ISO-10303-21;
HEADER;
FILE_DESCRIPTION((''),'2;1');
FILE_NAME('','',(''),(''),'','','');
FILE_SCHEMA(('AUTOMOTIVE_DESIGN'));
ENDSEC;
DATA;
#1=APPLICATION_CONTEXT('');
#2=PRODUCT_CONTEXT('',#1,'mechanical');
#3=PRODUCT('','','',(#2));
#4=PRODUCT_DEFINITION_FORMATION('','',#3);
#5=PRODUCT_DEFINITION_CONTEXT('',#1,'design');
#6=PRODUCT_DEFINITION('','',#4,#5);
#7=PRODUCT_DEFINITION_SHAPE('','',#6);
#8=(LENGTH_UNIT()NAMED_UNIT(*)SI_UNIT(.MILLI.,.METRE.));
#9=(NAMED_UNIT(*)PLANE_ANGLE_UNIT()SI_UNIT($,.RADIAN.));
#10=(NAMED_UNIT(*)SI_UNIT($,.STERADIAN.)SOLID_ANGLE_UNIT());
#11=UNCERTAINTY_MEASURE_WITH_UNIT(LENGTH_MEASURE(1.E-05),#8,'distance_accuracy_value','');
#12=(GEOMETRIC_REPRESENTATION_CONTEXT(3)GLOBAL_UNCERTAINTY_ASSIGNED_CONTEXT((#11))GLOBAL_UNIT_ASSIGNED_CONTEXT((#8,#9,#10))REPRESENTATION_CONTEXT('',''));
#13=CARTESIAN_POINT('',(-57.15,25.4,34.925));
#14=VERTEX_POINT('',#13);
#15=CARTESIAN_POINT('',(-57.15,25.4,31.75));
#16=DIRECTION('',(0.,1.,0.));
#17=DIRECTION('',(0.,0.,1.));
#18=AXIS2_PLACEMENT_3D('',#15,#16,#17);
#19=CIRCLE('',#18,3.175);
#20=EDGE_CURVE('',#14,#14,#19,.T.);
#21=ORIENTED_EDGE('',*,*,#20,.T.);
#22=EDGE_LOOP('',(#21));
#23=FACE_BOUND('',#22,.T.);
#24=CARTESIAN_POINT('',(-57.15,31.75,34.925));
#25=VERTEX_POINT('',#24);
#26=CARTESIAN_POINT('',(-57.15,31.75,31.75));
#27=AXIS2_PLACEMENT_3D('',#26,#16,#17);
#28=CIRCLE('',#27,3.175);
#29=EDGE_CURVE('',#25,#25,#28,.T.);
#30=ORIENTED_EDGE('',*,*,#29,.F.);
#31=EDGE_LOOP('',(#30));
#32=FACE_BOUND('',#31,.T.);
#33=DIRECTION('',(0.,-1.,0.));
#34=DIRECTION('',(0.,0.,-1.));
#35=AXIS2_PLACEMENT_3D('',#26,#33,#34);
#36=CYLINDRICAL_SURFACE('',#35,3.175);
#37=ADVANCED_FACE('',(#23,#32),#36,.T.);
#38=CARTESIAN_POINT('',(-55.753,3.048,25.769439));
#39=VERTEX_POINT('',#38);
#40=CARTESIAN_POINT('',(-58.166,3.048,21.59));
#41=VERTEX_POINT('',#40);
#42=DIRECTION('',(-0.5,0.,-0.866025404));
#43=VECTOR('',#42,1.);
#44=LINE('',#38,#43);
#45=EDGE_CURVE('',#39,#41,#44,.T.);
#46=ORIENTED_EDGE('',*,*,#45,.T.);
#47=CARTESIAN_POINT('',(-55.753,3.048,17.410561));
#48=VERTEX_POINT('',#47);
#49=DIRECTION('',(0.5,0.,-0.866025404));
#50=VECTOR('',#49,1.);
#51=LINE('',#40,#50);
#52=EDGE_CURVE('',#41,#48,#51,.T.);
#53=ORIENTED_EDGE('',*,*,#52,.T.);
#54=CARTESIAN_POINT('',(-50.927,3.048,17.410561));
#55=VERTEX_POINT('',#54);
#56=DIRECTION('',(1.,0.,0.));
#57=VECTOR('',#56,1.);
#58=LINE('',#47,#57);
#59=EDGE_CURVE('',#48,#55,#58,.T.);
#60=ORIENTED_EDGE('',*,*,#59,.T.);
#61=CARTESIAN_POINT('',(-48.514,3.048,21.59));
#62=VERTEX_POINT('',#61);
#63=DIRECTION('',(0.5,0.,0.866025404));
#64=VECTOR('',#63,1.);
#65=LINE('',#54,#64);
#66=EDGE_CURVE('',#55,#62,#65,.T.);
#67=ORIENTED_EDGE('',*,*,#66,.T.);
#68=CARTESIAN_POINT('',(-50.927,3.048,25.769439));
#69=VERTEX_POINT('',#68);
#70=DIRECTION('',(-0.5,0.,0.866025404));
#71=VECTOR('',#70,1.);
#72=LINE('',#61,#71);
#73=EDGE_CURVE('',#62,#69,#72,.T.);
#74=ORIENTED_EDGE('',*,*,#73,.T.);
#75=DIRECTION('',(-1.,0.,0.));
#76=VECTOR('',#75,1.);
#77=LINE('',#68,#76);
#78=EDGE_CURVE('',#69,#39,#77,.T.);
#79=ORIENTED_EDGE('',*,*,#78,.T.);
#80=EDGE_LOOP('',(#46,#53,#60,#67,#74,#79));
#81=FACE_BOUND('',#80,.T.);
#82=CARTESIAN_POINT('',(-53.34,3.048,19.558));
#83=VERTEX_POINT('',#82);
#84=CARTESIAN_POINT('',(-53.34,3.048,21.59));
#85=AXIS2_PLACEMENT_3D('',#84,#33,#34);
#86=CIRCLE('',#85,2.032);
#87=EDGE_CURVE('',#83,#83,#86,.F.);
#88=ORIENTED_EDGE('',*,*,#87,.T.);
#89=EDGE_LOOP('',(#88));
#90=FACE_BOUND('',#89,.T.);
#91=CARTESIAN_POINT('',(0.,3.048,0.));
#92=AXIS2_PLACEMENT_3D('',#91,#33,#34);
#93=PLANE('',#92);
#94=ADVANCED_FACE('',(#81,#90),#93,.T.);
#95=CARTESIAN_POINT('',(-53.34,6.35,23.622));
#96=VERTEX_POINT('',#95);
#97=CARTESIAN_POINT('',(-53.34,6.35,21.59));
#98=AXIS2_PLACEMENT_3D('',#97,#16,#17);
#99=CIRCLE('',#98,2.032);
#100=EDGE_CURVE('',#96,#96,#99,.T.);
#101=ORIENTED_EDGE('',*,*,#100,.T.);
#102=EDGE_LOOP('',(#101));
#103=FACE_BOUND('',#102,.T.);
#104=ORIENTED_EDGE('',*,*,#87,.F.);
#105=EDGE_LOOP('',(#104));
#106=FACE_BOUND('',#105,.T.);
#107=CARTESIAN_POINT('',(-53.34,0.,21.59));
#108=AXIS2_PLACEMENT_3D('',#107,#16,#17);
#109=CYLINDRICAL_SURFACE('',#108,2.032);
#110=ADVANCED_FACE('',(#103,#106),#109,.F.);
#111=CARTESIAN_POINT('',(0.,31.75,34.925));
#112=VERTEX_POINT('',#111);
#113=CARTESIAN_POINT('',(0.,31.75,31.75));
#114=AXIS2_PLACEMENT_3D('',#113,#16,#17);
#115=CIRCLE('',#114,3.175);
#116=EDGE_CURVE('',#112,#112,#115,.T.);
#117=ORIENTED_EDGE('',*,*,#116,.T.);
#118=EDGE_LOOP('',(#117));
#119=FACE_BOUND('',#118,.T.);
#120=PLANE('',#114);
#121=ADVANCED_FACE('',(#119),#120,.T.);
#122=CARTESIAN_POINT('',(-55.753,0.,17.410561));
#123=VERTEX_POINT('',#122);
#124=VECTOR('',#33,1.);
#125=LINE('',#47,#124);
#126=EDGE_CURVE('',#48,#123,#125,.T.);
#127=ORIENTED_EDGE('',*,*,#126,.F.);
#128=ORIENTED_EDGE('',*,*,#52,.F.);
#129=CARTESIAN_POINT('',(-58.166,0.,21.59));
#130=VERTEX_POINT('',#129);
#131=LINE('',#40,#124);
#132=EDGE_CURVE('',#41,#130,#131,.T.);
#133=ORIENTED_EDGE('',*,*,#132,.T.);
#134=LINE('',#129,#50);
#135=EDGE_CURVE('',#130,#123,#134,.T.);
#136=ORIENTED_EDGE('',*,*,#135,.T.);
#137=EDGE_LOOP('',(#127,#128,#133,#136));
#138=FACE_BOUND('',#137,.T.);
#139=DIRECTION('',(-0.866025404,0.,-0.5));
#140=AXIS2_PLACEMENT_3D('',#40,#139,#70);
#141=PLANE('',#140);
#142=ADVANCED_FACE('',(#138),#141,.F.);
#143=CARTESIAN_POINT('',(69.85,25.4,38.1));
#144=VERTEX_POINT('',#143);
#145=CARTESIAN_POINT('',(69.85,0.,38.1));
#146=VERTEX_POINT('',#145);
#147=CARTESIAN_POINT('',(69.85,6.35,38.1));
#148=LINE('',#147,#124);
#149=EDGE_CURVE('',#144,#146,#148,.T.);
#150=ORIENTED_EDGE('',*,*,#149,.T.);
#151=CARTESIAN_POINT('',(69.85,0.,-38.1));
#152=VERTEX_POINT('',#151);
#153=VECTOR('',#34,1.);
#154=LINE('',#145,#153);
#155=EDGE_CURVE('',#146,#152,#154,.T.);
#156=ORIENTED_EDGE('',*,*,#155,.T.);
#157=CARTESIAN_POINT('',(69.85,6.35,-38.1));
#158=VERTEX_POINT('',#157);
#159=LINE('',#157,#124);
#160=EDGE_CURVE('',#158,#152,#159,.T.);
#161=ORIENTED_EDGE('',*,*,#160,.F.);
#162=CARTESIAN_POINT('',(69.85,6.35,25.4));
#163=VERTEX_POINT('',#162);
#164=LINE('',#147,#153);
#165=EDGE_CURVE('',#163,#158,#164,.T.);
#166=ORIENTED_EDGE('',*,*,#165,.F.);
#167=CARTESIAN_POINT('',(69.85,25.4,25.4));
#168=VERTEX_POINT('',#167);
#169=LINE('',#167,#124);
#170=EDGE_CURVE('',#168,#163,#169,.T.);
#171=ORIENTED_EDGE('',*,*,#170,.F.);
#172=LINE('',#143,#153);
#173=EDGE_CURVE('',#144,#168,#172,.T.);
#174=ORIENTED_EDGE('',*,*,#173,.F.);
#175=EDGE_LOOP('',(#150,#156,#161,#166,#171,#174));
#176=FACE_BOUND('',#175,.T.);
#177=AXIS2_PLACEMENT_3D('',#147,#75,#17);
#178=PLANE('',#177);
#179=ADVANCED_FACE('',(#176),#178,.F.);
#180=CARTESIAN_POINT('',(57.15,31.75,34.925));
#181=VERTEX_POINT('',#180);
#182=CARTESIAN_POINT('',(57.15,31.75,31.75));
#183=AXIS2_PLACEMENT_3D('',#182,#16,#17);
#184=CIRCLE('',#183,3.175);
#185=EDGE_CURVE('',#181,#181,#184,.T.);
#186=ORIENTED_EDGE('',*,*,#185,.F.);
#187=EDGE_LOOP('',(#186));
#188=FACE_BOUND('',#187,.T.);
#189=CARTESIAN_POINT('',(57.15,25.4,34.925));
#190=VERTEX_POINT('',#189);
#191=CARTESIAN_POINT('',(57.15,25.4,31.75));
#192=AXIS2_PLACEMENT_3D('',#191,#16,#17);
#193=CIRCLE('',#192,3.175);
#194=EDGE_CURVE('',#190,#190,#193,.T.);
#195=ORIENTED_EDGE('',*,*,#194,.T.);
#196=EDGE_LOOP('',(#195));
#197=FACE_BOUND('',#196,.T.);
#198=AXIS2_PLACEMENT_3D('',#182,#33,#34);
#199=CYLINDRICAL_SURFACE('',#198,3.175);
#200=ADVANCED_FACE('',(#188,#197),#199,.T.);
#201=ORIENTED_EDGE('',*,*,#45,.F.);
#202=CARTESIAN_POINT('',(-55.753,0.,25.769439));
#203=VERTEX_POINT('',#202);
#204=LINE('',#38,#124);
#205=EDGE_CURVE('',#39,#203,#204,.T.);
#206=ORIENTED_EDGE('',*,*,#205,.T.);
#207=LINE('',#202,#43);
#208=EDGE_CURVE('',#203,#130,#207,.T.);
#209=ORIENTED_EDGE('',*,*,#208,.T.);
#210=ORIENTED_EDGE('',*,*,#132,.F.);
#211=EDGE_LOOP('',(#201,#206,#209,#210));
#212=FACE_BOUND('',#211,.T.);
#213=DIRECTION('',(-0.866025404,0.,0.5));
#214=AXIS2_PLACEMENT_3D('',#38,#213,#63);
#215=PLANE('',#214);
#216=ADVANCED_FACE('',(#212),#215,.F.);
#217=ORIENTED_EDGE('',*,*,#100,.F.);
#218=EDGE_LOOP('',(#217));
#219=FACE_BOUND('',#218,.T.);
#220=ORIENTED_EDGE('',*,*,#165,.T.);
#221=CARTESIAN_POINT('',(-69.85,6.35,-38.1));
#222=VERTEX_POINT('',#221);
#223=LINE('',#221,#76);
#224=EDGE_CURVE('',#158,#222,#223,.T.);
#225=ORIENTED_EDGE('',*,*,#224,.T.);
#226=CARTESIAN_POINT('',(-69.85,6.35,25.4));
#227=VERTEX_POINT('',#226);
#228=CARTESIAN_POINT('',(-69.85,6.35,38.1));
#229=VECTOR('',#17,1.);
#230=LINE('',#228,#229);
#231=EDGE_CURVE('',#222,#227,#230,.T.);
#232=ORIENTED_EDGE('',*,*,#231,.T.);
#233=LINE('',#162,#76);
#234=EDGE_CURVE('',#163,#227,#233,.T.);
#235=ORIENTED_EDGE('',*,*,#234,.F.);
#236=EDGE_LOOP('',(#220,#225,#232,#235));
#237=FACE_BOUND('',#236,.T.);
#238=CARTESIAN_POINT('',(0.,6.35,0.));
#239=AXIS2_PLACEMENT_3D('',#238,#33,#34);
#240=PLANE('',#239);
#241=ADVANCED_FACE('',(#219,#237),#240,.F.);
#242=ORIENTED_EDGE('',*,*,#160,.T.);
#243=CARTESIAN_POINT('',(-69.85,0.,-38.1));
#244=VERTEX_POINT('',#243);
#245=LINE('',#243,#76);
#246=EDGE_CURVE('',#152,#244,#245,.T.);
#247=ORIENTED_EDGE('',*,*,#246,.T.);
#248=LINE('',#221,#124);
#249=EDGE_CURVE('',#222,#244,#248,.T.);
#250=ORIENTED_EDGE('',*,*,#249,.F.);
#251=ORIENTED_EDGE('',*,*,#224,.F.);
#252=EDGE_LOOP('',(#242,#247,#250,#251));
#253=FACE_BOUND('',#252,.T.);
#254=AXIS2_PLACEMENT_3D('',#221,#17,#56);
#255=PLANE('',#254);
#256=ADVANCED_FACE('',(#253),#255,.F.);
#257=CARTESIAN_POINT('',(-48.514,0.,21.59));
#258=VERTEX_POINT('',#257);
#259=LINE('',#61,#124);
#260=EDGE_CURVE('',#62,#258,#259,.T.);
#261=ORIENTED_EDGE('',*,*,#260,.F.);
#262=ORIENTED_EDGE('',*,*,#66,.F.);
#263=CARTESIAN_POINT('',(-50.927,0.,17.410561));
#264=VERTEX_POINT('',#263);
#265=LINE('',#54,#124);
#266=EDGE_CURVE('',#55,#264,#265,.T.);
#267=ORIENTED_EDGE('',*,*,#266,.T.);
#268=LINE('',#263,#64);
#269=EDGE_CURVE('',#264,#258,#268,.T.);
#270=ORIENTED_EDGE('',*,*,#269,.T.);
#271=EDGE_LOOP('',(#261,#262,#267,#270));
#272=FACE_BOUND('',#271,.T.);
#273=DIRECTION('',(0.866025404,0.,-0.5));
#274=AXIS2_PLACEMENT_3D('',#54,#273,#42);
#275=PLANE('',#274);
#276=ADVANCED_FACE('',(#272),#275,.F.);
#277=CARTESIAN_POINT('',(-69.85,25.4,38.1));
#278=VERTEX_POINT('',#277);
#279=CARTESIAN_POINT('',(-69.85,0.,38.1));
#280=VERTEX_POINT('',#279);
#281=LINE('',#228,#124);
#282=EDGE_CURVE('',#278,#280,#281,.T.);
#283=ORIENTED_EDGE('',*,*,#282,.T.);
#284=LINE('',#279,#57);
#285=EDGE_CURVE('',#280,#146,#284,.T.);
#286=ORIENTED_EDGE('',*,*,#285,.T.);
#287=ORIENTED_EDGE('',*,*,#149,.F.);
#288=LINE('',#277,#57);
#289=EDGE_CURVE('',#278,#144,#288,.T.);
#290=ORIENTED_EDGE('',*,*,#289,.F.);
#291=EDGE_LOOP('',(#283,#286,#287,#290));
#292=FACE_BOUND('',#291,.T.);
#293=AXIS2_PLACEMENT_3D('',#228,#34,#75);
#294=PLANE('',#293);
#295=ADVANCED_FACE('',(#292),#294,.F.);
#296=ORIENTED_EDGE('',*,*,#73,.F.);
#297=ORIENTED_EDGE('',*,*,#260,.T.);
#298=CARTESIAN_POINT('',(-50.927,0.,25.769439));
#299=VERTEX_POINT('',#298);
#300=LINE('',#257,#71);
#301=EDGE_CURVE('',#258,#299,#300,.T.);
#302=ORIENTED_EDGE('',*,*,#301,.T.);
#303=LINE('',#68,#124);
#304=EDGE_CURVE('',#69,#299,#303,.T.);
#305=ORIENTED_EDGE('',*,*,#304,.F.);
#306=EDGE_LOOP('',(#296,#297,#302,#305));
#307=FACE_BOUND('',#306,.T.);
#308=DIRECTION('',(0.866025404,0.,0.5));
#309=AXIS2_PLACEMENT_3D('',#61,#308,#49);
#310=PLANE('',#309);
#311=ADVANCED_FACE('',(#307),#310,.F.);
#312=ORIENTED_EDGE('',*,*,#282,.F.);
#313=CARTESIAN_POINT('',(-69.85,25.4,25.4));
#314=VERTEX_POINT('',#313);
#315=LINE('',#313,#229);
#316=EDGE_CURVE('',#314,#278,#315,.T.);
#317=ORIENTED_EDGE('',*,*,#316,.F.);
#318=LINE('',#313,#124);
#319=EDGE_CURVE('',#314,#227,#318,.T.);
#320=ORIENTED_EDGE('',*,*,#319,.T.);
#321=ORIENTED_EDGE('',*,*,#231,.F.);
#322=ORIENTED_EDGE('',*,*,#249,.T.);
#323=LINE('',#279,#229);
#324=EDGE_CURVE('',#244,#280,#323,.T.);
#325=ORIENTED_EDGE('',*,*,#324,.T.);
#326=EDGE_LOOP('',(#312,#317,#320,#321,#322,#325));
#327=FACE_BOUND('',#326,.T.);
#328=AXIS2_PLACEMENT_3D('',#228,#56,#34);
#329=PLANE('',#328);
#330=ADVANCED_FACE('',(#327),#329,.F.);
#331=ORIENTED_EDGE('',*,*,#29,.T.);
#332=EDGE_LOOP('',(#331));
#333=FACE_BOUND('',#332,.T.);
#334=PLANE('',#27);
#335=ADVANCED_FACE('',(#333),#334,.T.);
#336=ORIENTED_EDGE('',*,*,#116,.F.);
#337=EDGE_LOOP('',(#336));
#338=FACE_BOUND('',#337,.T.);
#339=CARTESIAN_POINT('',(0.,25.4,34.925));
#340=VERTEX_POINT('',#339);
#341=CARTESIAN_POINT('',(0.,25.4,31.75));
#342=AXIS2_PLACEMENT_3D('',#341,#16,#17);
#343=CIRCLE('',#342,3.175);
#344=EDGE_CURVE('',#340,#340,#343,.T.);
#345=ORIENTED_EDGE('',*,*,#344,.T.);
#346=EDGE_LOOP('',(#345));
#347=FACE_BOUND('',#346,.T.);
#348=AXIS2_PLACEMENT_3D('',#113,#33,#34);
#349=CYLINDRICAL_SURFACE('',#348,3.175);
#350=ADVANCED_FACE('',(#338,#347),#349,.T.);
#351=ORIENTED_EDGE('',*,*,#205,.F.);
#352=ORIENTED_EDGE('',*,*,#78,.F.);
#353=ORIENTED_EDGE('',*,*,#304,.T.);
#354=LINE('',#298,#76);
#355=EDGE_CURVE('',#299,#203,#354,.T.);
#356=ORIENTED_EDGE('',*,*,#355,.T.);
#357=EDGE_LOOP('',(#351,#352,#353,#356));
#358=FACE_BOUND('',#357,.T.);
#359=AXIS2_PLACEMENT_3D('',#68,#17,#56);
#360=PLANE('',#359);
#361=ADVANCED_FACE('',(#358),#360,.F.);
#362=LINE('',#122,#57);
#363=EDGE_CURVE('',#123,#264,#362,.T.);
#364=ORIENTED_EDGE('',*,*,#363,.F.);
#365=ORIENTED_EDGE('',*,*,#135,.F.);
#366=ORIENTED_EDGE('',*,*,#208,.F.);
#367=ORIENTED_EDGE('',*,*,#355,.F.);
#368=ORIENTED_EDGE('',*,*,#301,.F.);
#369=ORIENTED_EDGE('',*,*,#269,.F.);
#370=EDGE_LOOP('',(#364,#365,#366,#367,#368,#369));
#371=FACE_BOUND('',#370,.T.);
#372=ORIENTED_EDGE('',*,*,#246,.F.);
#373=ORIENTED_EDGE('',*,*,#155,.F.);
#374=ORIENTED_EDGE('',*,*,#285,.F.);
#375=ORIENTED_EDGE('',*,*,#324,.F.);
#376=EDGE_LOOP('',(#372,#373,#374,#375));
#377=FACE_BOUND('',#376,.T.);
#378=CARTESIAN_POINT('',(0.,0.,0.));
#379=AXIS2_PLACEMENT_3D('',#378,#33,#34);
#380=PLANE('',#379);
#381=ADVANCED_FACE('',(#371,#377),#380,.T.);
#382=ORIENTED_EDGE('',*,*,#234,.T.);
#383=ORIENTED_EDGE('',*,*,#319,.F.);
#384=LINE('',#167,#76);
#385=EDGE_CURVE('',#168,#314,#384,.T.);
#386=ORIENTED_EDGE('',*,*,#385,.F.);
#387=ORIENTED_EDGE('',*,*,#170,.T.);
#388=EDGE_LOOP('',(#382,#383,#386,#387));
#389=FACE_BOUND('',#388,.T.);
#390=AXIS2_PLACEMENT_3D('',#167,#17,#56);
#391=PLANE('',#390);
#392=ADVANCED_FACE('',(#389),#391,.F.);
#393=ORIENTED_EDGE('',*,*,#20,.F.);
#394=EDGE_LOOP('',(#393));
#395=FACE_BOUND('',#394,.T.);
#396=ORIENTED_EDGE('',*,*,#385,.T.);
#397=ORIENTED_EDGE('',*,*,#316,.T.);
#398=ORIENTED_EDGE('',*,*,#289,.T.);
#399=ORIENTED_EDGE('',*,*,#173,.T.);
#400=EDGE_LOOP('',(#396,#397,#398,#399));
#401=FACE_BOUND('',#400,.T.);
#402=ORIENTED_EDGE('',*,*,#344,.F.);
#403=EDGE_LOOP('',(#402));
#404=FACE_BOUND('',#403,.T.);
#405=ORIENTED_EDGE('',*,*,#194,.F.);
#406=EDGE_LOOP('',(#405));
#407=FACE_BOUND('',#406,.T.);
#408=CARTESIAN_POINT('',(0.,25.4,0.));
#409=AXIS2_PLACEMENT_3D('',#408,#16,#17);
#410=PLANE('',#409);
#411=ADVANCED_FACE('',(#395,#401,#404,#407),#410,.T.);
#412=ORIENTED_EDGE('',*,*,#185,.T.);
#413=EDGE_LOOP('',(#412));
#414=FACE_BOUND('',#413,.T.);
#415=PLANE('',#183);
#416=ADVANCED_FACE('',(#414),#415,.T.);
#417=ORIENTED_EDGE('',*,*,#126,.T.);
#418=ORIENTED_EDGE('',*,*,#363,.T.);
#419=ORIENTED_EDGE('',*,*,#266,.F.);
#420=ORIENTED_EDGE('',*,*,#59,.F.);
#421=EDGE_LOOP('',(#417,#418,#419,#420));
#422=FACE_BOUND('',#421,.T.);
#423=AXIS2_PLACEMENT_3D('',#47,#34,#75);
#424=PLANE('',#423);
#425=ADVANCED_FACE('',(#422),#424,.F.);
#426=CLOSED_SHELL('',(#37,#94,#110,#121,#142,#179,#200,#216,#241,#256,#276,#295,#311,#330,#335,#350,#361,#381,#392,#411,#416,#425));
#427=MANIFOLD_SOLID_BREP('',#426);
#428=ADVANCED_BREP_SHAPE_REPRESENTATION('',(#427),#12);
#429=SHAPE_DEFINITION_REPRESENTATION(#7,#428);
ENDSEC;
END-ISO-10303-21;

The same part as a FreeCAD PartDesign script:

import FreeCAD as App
import Part
import Sketcher
from FreeCAD import Vector
Q = App.Units.Quantity


def add_polygon(sketch, points):
    """Adds a closed chain of lines whose ends are joined by coincident constraints."""
    first, n = sketch.GeometryCount, len(points)
    for a, b in zip(points, points[1:] + points[:1]):
        sketch.addGeometry(Part.LineSegment(App.Vector(*a, 0), App.Vector(*b, 0)), False)
    for i in range(n):
        sketch.addConstraint(Sketcher.Constraint("Coincident", first + i, 2, first + (i + 1) % n, 1))

doc = App.newDocument("Part")
params = doc.addObject("Spreadsheet::Sheet", "Params")
for row, (alias, value) in enumerate([
    ("sketch1_height", "3 in"),
    ("sketch1_width", "5.5 in"),
    ("pad1_length", "0.25 in"),
    ("sketch2_width", "5.5 in"),
    ("sketch2_height", "0.5 in"),
    ("pad2_length", "0.75 in"),
    ("sketch3_diameter", "0.16 in"),
    ("sketch4_width", "0.19 in"),
    ("sketch4_length", "0.19 in"),
    ("pocket2_length", "0.12 in"),
    ("sketch5_diameter", "0.25 in"),
    ("pad3_length", "0.25 in"),
], start=1):
    params.set(f"A{row}", alias)
    params.set(f"B{row}", "=" + value)
    params.setAlias(f"B{row}", alias)

body = doc.addObject("PartDesign::Body", "Body")

# Sketch on XZ plane
sketch1 = body.newObject("Sketcher::SketchObject", "Sketch")
sketch1.AttachmentSupport = (doc.getObject("XZ_Plane"), [""])
sketch1.MapMode = "FlatFace"
add_polygon(sketch1, [(-70, -38), (-70, 38), (70, 38), (70, -38)])  # lines 0-3
sketch1.addConstraint(Sketcher.Constraint("Vertical", 0))
sketch1.addConstraint(Sketcher.Constraint("Horizontal", 1))
sketch1.addConstraint(Sketcher.Constraint("Vertical", 2))
sketch1.addConstraint(Sketcher.Constraint("Horizontal", 3))
sketch1.addConstraint(Sketcher.Constraint("Symmetric", 0, 2, 2, 2, -1, 1))
sketch1.addConstraint(Sketcher.Constraint("DistanceY", 0, 1, 0, 2, Q("3 in")))
sketch1.addConstraint(Sketcher.Constraint("DistanceX", 1, 1, 1, 2, Q("5.5 in")))
sketch1.setExpression("Constraints[9]", "Params.sketch1_height")
sketch1.setExpression("Constraints[10]", "Params.sketch1_width")
pad1 = body.newObject("PartDesign::Pad", "Pad")
pad1.Profile = sketch1
pad1.setExpression("Length", "Params.pad1_length")
pad1.Reversed = True

# Sketch on XZ plane
sketch2 = body.newObject("Sketcher::SketchObject", "Sketch001")
sketch2.AttachmentSupport = (doc.getObject("XZ_Plane"), [""])
sketch2.MapMode = "FlatFace"
sketch2.AttachmentOffset = App.Placement(Vector(0, 0, -0.25 * 25.4), App.Rotation())
add_polygon(sketch2, [(-70, 25), (-70, 38), (70, 38), (70, 25)])  # lines 0-3
sketch2.addConstraint(Sketcher.Constraint("Vertical", 0))
sketch2.addConstraint(Sketcher.Constraint("Horizontal", 1))
sketch2.addConstraint(Sketcher.Constraint("Vertical", 2))
sketch2.addConstraint(Sketcher.Constraint("Horizontal", 3))
sketch2.addConstraint(Sketcher.Constraint("DistanceX", 1, 1, 1, 2, Q("5.5 in")))
sketch2.addConstraint(Sketcher.Constraint("DistanceY", 0, 1, 0, 2, Q("0.5 in")))
sketch2.addConstraint(Sketcher.Constraint("DistanceY", -1, 1, 2, 2, Q("1 in")))
sketch2.addConstraint(Sketcher.Constraint("DistanceX", 0, 2, -1, 1, Q("2.75 in")))
sketch2.setExpression("Constraints[8]", "Params.sketch2_width")
sketch2.setExpression("Constraints[9]", "Params.sketch2_height")
pad2 = body.newObject("PartDesign::Pad", "Pad001")
pad2.Profile = sketch2
pad2.setExpression("Length", "Params.pad2_length")
pad2.Reversed = True

# Sketch on XZ plane
sketch3 = body.newObject("Sketcher::SketchObject", "Sketch002")
sketch3.AttachmentSupport = (doc.getObject("XZ_Plane"), [""])
sketch3.MapMode = "FlatFace"
sketch3.AttachmentOffset = App.Placement(Vector(0, 0, -0.25 * 25.4), App.Rotation())
sketch3.addGeometry(Part.Circle(Vector(-53.3, 21.6, 0), Vector(0, 0, 1), 2), False)
sketch3.addConstraint(Sketcher.Constraint("Diameter", 0, Q("0.16 in")))
sketch3.addConstraint(Sketcher.Constraint("DistanceX", 0, 3, -1, 1, Q("2.1 in")))
sketch3.addConstraint(Sketcher.Constraint("DistanceY", -1, 1, 0, 3, Q("0.85 in")))
sketch3.setExpression("Constraints[0]", "Params.sketch3_diameter")
pocket1 = body.newObject("PartDesign::Pocket", "Pocket")
pocket1.Profile = sketch3
pocket1.Type = "ThroughAll"
pocket1.Reversed = True

# Sketch on XZ plane
sketch4 = body.newObject("Sketcher::SketchObject", "Sketch003")
sketch4.AttachmentSupport = (doc.getObject("XZ_Plane"), [""])
sketch4.MapMode = "FlatFace"
add_polygon(sketch4, [(-50.9, 25.8), (-55.8, 25.8), (-58.2, 21.6), (-55.8, 17.4), (-50.9, 17.4), (-48.5, 21.6)])  # lines 0-5
sketch4.addConstraint(Sketcher.Constraint("Horizontal", 0))
sketch4.addConstraint(Sketcher.Constraint("Horizontal", 3))
sketch4.addConstraint(Sketcher.Constraint("Parallel", 1, 4))
sketch4.addConstraint(Sketcher.Constraint("Parallel", 2, 5))
sketch4.addConstraint(Sketcher.Constraint("Horizontal", 1, 2, 4, 2))
sketch4.addConstraint(Sketcher.Constraint("Vertical", 0, 2, 2, 2))
sketch4.addConstraint(Sketcher.Constraint("Vertical", 3, 2, 5, 2))
sketch4.addConstraint(Sketcher.Constraint("Angle", 1, Q("-120 deg")))
sketch4.addConstraint(Sketcher.Constraint("DistanceX", 0, 2, 0, 1, Q("0.19 in")))
sketch4.addConstraint(Sketcher.Constraint("Distance", 1, Q("0.19 in")))
sketch4.addConstraint(Sketcher.Constraint("DistanceX", 1, 2, -1, 1, Q("2.29 in")))
sketch4.addConstraint(Sketcher.Constraint("DistanceY", -1, 1, 1, 2, Q("0.85 in")))
sketch4.setExpression("Constraints[14]", "Params.sketch4_width")
sketch4.setExpression("Constraints[15]", "Params.sketch4_length")
pocket2 = body.newObject("PartDesign::Pocket", "Pocket001")
pocket2.Profile = sketch4
pocket2.setExpression("Length", "Params.pocket2_length")

# Sketch on XZ plane
sketch5 = body.newObject("Sketcher::SketchObject", "Sketch004")
sketch5.AttachmentSupport = (doc.getObject("XZ_Plane"), [""])
sketch5.MapMode = "FlatFace"
sketch5.AttachmentOffset = App.Placement(Vector(0, 0, -1 * 25.4), App.Rotation())
sketch5.addGeometry(Part.Circle(Vector(-57.1, 31.8, 0), Vector(0, 0, 1), 3.2), False)
sketch5.addGeometry(Part.Circle(Vector(0, 31.8, 0), Vector(0, 0, 1), 3.2), False)
sketch5.addGeometry(Part.Circle(Vector(57.1, 31.8, 0), Vector(0, 0, 1), 3.2), False)
sketch5.addConstraint(Sketcher.Constraint("Equal", 0, 1))
sketch5.addConstraint(Sketcher.Constraint("Equal", 1, 2))
sketch5.addConstraint(Sketcher.Constraint("Symmetric", 0, 3, 2, 3, -2))
sketch5.addConstraint(Sketcher.Constraint("PointOnObject", 1, 3, -2))
sketch5.addConstraint(Sketcher.Constraint("Horizontal", 0, 3, 1, 3))
sketch5.addConstraint(Sketcher.Constraint("Diameter", 0, Q("0.25 in")))
sketch5.addConstraint(Sketcher.Constraint("DistanceX", 0, 3, 2, 3, Q("4.5 in")))
sketch5.addConstraint(Sketcher.Constraint("DistanceY", -1, 1, 0, 3, Q("1.25 in")))
sketch5.setExpression("Constraints[5]", "Params.sketch5_diameter")
pad3 = body.newObject("PartDesign::Pad", "Pad002")
pad3.Profile = sketch5
pad3.setExpression("Length", "Params.pad3_length")
pad3.Reversed = True

doc.recompute()
